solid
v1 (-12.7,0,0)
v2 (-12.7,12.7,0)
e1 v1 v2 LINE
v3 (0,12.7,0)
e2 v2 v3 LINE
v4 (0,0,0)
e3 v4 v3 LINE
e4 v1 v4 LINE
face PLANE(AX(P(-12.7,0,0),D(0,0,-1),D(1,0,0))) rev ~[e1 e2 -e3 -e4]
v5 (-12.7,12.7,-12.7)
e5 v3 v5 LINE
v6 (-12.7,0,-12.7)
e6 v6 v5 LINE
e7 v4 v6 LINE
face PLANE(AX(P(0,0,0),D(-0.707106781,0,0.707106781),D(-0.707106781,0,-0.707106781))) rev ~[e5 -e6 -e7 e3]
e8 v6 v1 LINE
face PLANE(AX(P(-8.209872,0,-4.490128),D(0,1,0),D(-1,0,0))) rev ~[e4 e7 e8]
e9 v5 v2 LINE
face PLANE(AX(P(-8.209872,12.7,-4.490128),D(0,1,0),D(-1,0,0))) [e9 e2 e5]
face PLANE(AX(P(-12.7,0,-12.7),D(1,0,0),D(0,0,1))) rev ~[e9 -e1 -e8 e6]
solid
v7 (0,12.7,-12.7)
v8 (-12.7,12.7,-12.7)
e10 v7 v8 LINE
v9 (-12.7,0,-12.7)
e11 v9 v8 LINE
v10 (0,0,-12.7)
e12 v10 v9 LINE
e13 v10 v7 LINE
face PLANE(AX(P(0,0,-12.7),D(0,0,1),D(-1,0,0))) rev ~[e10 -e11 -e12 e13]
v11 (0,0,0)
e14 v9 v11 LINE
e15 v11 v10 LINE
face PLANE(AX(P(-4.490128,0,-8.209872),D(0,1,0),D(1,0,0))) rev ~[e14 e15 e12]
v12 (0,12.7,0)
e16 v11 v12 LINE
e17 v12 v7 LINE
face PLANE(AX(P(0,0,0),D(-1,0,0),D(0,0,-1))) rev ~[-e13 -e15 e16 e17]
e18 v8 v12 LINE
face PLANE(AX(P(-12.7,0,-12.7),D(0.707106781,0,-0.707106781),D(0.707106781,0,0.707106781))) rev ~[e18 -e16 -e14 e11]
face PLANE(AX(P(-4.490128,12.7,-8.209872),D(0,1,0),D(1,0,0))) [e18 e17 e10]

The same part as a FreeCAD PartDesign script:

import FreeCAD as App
import Part
import Sketcher
Q = App.Units.Quantity

doc = App.newDocument("Part")
params = doc.addObject("Spreadsheet::Sheet", "Params")
for row, (alias, value) in enumerate([
    ("sketch1_width", "0.5 in"),
    ("pad1_length", "0.5 in"),
    ("sketch2_width", "0.5 in"),
    ("pad2_length", "0.5 in"),
], start=1):
    params.set(f"A{row}", alias)
    params.set(f"B{row}", "=" + value)
    params.setAlias(f"B{row}", alias)

body = doc.addObject("PartDesign::Body", "Body")

# Sketch on XZ plane
sketch1 = doc.addObject("Sketcher::SketchObject", "Sketch")
body.addObject(sketch1)
sketch1.AttachmentSupport = (doc.XZ_Plane, [""])
sketch1.MapMode = "FlatFace"
sketch1.addGeometry([
    Part.LineSegment(App.Vector(0, 0, 0), App.Vector(0, -13, 0)),
    Part.LineSegment(App.Vector(0, -13, 0), App.Vector(-13, -13, 0)),
    Part.LineSegment(App.Vector(-13, -13, 0), App.Vector(0, 0, 0)),
], False)
sketch1.addConstraint([
    Sketcher.Constraint("Coincident", 0, 2, 1, 1),
    Sketcher.Constraint("Coincident", 1, 2, 2, 1),
    Sketcher.Constraint("Coincident", 2, 2, 0, 1),
    Sketcher.Constraint("Vertical", 0),
    Sketcher.Constraint("Horizontal", 1),
    Sketcher.Constraint("Coincident", 2, 2, -1, 1),
    Sketcher.Constraint("Equal", 1, 0),
    Sketcher.Constraint("DistanceX", 1, 2, 1, 1, Q("0.5 in")),
])
sketch1.setExpression("Constraints[7]", "Params.sketch1_width")
pad1 = doc.addObject("PartDesign::Pad", "Pad")
body.addObject(pad1)
pad1.Profile = sketch1
pad1.setExpression("Length", "Params.pad1_length")
pad1.Reversed = True
body2 = doc.addObject("PartDesign::Body", "Body001")

# Sketch on XZ plane
sketch2 = doc.addObject("Sketcher::SketchObject", "Sketch001")
body2.addObject(sketch2)
sketch2.AttachmentSupport = (doc.getObject("XZ_Plane001"), [""])
sketch2.MapMode = "FlatFace"
sketch2.addGeometry([
    Part.LineSegment(App.Vector(-13, 0, 0), App.Vector(-13, -13, 0)),
    Part.LineSegment(App.Vector(-13, -13, 0), App.Vector(0, 0, 0)),
    Part.LineSegment(App.Vector(0, 0, 0), App.Vector(-13, 0, 0)),
], False)
sketch2.addConstraint([
    Sketcher.Constraint("Coincident", 0, 2, 1, 1),
    Sketcher.Constraint("Coincident", 1, 2, 2, 1),
    Sketcher.Constraint("Coincident", 2, 2, 0, 1),
    Sketcher.Constraint("Vertical", 0),
    Sketcher.Constraint("Horizontal", 2),
    Sketcher.Constraint("Coincident", 1, 2, -1, 1),
    Sketcher.Constraint("Equal", 2, 0),
    Sketcher.Constraint("DistanceX", 2, 2, 2, 1, Q("0.5 in")),
])
sketch2.setExpression("Constraints[7]", "Params.sketch2_width")
pad2 = doc.addObject("PartDesign::Pad", "Pad001")
body2.addObject(pad2)
pad2.Profile = sketch2
pad2.setExpression("Length", "Params.pad2_length")
pad2.Reversed = True

doc.recompute()
